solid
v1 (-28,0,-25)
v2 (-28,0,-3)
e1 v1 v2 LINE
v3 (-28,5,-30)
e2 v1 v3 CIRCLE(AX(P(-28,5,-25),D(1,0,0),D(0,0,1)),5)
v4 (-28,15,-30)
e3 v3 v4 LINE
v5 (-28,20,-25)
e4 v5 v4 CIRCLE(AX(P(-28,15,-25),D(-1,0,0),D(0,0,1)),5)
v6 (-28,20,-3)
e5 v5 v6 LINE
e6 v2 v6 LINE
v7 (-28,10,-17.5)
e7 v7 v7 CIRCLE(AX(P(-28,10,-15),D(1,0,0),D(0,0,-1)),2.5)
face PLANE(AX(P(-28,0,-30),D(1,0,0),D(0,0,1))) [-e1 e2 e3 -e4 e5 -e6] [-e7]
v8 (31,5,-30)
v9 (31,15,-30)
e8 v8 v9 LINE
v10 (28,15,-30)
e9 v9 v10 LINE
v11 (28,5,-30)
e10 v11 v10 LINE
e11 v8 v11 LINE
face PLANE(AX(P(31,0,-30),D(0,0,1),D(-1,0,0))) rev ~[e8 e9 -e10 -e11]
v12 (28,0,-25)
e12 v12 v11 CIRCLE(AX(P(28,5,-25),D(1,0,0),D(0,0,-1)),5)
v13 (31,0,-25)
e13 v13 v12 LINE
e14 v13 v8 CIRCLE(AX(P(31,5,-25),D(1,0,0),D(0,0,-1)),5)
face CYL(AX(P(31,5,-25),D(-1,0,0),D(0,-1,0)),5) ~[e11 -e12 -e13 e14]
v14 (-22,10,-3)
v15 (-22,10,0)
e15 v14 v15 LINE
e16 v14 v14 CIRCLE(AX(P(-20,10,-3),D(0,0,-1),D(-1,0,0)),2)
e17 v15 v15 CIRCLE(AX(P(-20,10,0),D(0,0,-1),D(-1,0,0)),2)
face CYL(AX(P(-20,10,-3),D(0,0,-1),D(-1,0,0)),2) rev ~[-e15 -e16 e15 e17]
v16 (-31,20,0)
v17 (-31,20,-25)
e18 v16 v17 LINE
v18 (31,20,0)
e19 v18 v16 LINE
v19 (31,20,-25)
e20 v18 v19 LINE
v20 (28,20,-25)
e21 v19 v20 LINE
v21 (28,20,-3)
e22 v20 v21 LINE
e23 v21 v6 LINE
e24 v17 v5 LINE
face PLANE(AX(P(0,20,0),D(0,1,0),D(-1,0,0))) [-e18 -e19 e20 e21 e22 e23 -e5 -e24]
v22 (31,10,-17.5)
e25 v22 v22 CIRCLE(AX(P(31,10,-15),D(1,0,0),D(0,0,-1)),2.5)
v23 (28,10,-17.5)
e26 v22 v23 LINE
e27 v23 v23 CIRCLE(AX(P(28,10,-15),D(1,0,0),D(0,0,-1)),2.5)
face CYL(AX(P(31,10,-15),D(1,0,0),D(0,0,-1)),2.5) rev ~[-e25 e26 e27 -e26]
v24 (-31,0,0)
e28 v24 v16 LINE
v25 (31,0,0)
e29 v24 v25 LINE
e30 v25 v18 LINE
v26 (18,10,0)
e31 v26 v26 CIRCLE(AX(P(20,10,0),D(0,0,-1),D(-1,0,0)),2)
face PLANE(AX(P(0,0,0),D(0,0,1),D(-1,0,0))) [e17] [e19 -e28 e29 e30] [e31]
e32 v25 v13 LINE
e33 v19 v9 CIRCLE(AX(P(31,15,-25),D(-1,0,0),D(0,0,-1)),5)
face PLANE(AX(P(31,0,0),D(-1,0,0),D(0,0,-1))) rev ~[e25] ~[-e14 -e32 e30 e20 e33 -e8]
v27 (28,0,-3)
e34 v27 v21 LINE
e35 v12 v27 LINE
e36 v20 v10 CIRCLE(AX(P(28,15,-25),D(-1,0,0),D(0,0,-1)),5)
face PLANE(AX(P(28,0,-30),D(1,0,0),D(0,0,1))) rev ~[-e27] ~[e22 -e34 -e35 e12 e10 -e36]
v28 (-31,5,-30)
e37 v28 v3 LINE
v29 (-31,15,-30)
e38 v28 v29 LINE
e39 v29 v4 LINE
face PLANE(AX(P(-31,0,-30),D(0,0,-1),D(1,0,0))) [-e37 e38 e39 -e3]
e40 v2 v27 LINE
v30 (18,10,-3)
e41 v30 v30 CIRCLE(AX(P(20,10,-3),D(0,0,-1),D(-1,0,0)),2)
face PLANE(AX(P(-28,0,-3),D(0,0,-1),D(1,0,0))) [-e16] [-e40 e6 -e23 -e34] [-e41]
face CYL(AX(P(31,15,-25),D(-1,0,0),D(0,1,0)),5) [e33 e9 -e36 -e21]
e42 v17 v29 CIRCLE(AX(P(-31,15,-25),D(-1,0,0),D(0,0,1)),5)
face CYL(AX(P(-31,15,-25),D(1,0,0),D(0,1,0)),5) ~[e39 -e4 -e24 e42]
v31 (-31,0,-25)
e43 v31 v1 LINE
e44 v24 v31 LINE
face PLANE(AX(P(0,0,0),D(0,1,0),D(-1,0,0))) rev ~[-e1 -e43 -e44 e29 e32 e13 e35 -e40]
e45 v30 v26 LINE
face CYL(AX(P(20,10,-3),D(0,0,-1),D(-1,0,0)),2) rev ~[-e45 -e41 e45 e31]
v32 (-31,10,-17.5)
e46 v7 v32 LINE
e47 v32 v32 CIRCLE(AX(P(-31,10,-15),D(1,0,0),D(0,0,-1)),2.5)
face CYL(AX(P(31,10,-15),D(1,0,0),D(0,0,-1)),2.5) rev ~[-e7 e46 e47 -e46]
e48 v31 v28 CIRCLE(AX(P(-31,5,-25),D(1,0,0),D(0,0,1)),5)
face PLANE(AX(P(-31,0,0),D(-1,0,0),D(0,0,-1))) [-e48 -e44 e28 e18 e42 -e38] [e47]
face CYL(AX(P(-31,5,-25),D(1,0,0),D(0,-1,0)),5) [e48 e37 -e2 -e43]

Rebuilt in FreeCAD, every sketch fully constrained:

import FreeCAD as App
import Part
import Sketcher
from FreeCAD import Vector


def edges_at(feature, points):
    """Names of the edges that pass closest to the given points."""
    edges = feature.Shape.Edges
    near = lambda p: min(range(len(edges)), key=lambda i: edges[i].distToShape(Part.Vertex(*p))[0])
    return sorted({f"Edge{near(p) + 1}" for p in points})

doc = App.newDocument("Part")
body = doc.addObject("PartDesign::Body", "Body")

# Sketch on XZ plane
sketch1 = body.newObject("Sketcher::SketchObject", "Sketch")
sketch1.AttachmentSupport = (doc.getObject("XZ_Plane"), [""])
sketch1.MapMode = "FlatFace"
sketch1.addGeometry([
    Part.LineSegment(Vector(-31, 0, 0), Vector(31, 0, 0)),  # 0
    Part.LineSegment(Vector(31, 0, 0), Vector(31, -30, 0)),  # 1
    Part.LineSegment(Vector(31, -30, 0), Vector(28, -30, 0)),  # 2
    Part.LineSegment(Vector(28, -30, 0), Vector(28, -3, 0)),  # 3
    Part.LineSegment(Vector(28, -3, 0), Vector(-28, -3, 0)),  # 4
    Part.LineSegment(Vector(-28, -3, 0), Vector(-28, -30, 0)),  # 5
    Part.LineSegment(Vector(-28, -30, 0), Vector(-31, -30, 0)),  # 6
    Part.LineSegment(Vector(-31, -30, 0), Vector(-31, 0, 0)),  # 7
], False)
sketch1.addConstraint([
    Sketcher.Constraint("Coincident", 0, 2, 1, 1),
    Sketcher.Constraint("Coincident", 1, 2, 2, 1),
    Sketcher.Constraint("Coincident", 2, 2, 3, 1),
    Sketcher.Constraint("Coincident", 3, 2, 4, 1),
    Sketcher.Constraint("Coincident", 4, 2, 5, 1),
    Sketcher.Constraint("Coincident", 5, 2, 6, 1),
    Sketcher.Constraint("Coincident", 6, 2, 7, 1),
    Sketcher.Constraint("Coincident", 7, 2, 0, 1),
    Sketcher.Constraint("Horizontal", 0),
    Sketcher.Constraint("Vertical", 1),
    Sketcher.Constraint("Horizontal", 2),
    Sketcher.Constraint("Vertical", 3),
    Sketcher.Constraint("Horizontal", 4),
    Sketcher.Constraint("Vertical", 5),
    Sketcher.Constraint("Horizontal", 6),
    Sketcher.Constraint("Vertical", 7),
    Sketcher.Constraint("Symmetric", 0, 2, 7, 2, -1, 1),
    Sketcher.Constraint("Symmetric", 2, 2, 5, 2, -2),
    Sketcher.Constraint("DistanceX", 2, 2, 2, 1, 3.0),
    Sketcher.Constraint("DistanceY", 1, 2, 1, 1, 30.0),
    Sketcher.Constraint("DistanceY", 3, 1, 3, 2, 27.0),
    Sketcher.Constraint("DistanceX", -1, 1, 0, 2, 31.0),
])
pad1 = body.newObject("PartDesign::Pad", "Pad")
pad1.Profile = sketch1
pad1.Length = 20
pad1.Reversed = True

# Sketch on YZ plane
sketch2 = body.newObject("Sketcher::SketchObject", "Sketch001")
sketch2.AttachmentSupport = (doc.getObject("YZ_Plane"), [""])
sketch2.MapMode = "FlatFace"
sketch2.AttachmentOffset = App.Placement(Vector(0, 0, 31), App.Rotation())
sketch2.addGeometry(Part.Circle(Vector(10, -15, 0), Vector(0, 0, 1), 2.5), False)
sketch2.addConstraint([
    Sketcher.Constraint("Diameter", 0, 5.0),
    Sketcher.Constraint("DistanceX", -1, 1, 0, 3, 10.0),
    Sketcher.Constraint("DistanceY", 0, 3, -1, 1, 15.0),
])
pocket1 = body.newObject("PartDesign::Pocket", "Pocket")
pocket1.Profile = sketch2
pocket1.Length = 70
doc.recompute()

fillet = body.newObject("PartDesign::Fillet", "Fillet")
fillet.Base = (pocket1, edges_at(pocket1, [
    (29.5, 20, -30),
    (29.5, 0, -30),
    (-29.5, 0, -30),
    (-29.5, 20, -30),
]))
fillet.Radius = 5

# Sketch on XY plane
sketch3 = body.newObject("Sketcher::SketchObject", "Sketch002")
sketch3.AttachmentSupport = (doc.getObject("XY_Plane"), [""])
sketch3.MapMode = "FlatFace"
sketch3.AttachmentOffset = App.Placement(Vector(0, 0, -3), App.Rotation())
sketch3.addGeometry([
    Part.Circle(Vector(-20, 10, 0), Vector(0, 0, 1), 2),
    Part.Circle(Vector(20, 10, 0), Vector(0, 0, 1), 2),
], False)
sketch3.addConstraint([
    Sketcher.Constraint("Equal", 0, 1),
    Sketcher.Constraint("Symmetric", 0, 3, 1, 3, -2),
    Sketcher.Constraint("Diameter", 0, 4.0),
    Sketcher.Constraint("DistanceX", 0, 3, -1, 1, 20.0),
    Sketcher.Constraint("DistanceY", -1, 1, 0, 3, 10.0),
])
pocket2 = body.newObject("PartDesign::Pocket", "Pocket001")
pocket2.Profile = sketch3
pocket2.Length = 10
pocket2.Reversed = True

doc.recompute()
